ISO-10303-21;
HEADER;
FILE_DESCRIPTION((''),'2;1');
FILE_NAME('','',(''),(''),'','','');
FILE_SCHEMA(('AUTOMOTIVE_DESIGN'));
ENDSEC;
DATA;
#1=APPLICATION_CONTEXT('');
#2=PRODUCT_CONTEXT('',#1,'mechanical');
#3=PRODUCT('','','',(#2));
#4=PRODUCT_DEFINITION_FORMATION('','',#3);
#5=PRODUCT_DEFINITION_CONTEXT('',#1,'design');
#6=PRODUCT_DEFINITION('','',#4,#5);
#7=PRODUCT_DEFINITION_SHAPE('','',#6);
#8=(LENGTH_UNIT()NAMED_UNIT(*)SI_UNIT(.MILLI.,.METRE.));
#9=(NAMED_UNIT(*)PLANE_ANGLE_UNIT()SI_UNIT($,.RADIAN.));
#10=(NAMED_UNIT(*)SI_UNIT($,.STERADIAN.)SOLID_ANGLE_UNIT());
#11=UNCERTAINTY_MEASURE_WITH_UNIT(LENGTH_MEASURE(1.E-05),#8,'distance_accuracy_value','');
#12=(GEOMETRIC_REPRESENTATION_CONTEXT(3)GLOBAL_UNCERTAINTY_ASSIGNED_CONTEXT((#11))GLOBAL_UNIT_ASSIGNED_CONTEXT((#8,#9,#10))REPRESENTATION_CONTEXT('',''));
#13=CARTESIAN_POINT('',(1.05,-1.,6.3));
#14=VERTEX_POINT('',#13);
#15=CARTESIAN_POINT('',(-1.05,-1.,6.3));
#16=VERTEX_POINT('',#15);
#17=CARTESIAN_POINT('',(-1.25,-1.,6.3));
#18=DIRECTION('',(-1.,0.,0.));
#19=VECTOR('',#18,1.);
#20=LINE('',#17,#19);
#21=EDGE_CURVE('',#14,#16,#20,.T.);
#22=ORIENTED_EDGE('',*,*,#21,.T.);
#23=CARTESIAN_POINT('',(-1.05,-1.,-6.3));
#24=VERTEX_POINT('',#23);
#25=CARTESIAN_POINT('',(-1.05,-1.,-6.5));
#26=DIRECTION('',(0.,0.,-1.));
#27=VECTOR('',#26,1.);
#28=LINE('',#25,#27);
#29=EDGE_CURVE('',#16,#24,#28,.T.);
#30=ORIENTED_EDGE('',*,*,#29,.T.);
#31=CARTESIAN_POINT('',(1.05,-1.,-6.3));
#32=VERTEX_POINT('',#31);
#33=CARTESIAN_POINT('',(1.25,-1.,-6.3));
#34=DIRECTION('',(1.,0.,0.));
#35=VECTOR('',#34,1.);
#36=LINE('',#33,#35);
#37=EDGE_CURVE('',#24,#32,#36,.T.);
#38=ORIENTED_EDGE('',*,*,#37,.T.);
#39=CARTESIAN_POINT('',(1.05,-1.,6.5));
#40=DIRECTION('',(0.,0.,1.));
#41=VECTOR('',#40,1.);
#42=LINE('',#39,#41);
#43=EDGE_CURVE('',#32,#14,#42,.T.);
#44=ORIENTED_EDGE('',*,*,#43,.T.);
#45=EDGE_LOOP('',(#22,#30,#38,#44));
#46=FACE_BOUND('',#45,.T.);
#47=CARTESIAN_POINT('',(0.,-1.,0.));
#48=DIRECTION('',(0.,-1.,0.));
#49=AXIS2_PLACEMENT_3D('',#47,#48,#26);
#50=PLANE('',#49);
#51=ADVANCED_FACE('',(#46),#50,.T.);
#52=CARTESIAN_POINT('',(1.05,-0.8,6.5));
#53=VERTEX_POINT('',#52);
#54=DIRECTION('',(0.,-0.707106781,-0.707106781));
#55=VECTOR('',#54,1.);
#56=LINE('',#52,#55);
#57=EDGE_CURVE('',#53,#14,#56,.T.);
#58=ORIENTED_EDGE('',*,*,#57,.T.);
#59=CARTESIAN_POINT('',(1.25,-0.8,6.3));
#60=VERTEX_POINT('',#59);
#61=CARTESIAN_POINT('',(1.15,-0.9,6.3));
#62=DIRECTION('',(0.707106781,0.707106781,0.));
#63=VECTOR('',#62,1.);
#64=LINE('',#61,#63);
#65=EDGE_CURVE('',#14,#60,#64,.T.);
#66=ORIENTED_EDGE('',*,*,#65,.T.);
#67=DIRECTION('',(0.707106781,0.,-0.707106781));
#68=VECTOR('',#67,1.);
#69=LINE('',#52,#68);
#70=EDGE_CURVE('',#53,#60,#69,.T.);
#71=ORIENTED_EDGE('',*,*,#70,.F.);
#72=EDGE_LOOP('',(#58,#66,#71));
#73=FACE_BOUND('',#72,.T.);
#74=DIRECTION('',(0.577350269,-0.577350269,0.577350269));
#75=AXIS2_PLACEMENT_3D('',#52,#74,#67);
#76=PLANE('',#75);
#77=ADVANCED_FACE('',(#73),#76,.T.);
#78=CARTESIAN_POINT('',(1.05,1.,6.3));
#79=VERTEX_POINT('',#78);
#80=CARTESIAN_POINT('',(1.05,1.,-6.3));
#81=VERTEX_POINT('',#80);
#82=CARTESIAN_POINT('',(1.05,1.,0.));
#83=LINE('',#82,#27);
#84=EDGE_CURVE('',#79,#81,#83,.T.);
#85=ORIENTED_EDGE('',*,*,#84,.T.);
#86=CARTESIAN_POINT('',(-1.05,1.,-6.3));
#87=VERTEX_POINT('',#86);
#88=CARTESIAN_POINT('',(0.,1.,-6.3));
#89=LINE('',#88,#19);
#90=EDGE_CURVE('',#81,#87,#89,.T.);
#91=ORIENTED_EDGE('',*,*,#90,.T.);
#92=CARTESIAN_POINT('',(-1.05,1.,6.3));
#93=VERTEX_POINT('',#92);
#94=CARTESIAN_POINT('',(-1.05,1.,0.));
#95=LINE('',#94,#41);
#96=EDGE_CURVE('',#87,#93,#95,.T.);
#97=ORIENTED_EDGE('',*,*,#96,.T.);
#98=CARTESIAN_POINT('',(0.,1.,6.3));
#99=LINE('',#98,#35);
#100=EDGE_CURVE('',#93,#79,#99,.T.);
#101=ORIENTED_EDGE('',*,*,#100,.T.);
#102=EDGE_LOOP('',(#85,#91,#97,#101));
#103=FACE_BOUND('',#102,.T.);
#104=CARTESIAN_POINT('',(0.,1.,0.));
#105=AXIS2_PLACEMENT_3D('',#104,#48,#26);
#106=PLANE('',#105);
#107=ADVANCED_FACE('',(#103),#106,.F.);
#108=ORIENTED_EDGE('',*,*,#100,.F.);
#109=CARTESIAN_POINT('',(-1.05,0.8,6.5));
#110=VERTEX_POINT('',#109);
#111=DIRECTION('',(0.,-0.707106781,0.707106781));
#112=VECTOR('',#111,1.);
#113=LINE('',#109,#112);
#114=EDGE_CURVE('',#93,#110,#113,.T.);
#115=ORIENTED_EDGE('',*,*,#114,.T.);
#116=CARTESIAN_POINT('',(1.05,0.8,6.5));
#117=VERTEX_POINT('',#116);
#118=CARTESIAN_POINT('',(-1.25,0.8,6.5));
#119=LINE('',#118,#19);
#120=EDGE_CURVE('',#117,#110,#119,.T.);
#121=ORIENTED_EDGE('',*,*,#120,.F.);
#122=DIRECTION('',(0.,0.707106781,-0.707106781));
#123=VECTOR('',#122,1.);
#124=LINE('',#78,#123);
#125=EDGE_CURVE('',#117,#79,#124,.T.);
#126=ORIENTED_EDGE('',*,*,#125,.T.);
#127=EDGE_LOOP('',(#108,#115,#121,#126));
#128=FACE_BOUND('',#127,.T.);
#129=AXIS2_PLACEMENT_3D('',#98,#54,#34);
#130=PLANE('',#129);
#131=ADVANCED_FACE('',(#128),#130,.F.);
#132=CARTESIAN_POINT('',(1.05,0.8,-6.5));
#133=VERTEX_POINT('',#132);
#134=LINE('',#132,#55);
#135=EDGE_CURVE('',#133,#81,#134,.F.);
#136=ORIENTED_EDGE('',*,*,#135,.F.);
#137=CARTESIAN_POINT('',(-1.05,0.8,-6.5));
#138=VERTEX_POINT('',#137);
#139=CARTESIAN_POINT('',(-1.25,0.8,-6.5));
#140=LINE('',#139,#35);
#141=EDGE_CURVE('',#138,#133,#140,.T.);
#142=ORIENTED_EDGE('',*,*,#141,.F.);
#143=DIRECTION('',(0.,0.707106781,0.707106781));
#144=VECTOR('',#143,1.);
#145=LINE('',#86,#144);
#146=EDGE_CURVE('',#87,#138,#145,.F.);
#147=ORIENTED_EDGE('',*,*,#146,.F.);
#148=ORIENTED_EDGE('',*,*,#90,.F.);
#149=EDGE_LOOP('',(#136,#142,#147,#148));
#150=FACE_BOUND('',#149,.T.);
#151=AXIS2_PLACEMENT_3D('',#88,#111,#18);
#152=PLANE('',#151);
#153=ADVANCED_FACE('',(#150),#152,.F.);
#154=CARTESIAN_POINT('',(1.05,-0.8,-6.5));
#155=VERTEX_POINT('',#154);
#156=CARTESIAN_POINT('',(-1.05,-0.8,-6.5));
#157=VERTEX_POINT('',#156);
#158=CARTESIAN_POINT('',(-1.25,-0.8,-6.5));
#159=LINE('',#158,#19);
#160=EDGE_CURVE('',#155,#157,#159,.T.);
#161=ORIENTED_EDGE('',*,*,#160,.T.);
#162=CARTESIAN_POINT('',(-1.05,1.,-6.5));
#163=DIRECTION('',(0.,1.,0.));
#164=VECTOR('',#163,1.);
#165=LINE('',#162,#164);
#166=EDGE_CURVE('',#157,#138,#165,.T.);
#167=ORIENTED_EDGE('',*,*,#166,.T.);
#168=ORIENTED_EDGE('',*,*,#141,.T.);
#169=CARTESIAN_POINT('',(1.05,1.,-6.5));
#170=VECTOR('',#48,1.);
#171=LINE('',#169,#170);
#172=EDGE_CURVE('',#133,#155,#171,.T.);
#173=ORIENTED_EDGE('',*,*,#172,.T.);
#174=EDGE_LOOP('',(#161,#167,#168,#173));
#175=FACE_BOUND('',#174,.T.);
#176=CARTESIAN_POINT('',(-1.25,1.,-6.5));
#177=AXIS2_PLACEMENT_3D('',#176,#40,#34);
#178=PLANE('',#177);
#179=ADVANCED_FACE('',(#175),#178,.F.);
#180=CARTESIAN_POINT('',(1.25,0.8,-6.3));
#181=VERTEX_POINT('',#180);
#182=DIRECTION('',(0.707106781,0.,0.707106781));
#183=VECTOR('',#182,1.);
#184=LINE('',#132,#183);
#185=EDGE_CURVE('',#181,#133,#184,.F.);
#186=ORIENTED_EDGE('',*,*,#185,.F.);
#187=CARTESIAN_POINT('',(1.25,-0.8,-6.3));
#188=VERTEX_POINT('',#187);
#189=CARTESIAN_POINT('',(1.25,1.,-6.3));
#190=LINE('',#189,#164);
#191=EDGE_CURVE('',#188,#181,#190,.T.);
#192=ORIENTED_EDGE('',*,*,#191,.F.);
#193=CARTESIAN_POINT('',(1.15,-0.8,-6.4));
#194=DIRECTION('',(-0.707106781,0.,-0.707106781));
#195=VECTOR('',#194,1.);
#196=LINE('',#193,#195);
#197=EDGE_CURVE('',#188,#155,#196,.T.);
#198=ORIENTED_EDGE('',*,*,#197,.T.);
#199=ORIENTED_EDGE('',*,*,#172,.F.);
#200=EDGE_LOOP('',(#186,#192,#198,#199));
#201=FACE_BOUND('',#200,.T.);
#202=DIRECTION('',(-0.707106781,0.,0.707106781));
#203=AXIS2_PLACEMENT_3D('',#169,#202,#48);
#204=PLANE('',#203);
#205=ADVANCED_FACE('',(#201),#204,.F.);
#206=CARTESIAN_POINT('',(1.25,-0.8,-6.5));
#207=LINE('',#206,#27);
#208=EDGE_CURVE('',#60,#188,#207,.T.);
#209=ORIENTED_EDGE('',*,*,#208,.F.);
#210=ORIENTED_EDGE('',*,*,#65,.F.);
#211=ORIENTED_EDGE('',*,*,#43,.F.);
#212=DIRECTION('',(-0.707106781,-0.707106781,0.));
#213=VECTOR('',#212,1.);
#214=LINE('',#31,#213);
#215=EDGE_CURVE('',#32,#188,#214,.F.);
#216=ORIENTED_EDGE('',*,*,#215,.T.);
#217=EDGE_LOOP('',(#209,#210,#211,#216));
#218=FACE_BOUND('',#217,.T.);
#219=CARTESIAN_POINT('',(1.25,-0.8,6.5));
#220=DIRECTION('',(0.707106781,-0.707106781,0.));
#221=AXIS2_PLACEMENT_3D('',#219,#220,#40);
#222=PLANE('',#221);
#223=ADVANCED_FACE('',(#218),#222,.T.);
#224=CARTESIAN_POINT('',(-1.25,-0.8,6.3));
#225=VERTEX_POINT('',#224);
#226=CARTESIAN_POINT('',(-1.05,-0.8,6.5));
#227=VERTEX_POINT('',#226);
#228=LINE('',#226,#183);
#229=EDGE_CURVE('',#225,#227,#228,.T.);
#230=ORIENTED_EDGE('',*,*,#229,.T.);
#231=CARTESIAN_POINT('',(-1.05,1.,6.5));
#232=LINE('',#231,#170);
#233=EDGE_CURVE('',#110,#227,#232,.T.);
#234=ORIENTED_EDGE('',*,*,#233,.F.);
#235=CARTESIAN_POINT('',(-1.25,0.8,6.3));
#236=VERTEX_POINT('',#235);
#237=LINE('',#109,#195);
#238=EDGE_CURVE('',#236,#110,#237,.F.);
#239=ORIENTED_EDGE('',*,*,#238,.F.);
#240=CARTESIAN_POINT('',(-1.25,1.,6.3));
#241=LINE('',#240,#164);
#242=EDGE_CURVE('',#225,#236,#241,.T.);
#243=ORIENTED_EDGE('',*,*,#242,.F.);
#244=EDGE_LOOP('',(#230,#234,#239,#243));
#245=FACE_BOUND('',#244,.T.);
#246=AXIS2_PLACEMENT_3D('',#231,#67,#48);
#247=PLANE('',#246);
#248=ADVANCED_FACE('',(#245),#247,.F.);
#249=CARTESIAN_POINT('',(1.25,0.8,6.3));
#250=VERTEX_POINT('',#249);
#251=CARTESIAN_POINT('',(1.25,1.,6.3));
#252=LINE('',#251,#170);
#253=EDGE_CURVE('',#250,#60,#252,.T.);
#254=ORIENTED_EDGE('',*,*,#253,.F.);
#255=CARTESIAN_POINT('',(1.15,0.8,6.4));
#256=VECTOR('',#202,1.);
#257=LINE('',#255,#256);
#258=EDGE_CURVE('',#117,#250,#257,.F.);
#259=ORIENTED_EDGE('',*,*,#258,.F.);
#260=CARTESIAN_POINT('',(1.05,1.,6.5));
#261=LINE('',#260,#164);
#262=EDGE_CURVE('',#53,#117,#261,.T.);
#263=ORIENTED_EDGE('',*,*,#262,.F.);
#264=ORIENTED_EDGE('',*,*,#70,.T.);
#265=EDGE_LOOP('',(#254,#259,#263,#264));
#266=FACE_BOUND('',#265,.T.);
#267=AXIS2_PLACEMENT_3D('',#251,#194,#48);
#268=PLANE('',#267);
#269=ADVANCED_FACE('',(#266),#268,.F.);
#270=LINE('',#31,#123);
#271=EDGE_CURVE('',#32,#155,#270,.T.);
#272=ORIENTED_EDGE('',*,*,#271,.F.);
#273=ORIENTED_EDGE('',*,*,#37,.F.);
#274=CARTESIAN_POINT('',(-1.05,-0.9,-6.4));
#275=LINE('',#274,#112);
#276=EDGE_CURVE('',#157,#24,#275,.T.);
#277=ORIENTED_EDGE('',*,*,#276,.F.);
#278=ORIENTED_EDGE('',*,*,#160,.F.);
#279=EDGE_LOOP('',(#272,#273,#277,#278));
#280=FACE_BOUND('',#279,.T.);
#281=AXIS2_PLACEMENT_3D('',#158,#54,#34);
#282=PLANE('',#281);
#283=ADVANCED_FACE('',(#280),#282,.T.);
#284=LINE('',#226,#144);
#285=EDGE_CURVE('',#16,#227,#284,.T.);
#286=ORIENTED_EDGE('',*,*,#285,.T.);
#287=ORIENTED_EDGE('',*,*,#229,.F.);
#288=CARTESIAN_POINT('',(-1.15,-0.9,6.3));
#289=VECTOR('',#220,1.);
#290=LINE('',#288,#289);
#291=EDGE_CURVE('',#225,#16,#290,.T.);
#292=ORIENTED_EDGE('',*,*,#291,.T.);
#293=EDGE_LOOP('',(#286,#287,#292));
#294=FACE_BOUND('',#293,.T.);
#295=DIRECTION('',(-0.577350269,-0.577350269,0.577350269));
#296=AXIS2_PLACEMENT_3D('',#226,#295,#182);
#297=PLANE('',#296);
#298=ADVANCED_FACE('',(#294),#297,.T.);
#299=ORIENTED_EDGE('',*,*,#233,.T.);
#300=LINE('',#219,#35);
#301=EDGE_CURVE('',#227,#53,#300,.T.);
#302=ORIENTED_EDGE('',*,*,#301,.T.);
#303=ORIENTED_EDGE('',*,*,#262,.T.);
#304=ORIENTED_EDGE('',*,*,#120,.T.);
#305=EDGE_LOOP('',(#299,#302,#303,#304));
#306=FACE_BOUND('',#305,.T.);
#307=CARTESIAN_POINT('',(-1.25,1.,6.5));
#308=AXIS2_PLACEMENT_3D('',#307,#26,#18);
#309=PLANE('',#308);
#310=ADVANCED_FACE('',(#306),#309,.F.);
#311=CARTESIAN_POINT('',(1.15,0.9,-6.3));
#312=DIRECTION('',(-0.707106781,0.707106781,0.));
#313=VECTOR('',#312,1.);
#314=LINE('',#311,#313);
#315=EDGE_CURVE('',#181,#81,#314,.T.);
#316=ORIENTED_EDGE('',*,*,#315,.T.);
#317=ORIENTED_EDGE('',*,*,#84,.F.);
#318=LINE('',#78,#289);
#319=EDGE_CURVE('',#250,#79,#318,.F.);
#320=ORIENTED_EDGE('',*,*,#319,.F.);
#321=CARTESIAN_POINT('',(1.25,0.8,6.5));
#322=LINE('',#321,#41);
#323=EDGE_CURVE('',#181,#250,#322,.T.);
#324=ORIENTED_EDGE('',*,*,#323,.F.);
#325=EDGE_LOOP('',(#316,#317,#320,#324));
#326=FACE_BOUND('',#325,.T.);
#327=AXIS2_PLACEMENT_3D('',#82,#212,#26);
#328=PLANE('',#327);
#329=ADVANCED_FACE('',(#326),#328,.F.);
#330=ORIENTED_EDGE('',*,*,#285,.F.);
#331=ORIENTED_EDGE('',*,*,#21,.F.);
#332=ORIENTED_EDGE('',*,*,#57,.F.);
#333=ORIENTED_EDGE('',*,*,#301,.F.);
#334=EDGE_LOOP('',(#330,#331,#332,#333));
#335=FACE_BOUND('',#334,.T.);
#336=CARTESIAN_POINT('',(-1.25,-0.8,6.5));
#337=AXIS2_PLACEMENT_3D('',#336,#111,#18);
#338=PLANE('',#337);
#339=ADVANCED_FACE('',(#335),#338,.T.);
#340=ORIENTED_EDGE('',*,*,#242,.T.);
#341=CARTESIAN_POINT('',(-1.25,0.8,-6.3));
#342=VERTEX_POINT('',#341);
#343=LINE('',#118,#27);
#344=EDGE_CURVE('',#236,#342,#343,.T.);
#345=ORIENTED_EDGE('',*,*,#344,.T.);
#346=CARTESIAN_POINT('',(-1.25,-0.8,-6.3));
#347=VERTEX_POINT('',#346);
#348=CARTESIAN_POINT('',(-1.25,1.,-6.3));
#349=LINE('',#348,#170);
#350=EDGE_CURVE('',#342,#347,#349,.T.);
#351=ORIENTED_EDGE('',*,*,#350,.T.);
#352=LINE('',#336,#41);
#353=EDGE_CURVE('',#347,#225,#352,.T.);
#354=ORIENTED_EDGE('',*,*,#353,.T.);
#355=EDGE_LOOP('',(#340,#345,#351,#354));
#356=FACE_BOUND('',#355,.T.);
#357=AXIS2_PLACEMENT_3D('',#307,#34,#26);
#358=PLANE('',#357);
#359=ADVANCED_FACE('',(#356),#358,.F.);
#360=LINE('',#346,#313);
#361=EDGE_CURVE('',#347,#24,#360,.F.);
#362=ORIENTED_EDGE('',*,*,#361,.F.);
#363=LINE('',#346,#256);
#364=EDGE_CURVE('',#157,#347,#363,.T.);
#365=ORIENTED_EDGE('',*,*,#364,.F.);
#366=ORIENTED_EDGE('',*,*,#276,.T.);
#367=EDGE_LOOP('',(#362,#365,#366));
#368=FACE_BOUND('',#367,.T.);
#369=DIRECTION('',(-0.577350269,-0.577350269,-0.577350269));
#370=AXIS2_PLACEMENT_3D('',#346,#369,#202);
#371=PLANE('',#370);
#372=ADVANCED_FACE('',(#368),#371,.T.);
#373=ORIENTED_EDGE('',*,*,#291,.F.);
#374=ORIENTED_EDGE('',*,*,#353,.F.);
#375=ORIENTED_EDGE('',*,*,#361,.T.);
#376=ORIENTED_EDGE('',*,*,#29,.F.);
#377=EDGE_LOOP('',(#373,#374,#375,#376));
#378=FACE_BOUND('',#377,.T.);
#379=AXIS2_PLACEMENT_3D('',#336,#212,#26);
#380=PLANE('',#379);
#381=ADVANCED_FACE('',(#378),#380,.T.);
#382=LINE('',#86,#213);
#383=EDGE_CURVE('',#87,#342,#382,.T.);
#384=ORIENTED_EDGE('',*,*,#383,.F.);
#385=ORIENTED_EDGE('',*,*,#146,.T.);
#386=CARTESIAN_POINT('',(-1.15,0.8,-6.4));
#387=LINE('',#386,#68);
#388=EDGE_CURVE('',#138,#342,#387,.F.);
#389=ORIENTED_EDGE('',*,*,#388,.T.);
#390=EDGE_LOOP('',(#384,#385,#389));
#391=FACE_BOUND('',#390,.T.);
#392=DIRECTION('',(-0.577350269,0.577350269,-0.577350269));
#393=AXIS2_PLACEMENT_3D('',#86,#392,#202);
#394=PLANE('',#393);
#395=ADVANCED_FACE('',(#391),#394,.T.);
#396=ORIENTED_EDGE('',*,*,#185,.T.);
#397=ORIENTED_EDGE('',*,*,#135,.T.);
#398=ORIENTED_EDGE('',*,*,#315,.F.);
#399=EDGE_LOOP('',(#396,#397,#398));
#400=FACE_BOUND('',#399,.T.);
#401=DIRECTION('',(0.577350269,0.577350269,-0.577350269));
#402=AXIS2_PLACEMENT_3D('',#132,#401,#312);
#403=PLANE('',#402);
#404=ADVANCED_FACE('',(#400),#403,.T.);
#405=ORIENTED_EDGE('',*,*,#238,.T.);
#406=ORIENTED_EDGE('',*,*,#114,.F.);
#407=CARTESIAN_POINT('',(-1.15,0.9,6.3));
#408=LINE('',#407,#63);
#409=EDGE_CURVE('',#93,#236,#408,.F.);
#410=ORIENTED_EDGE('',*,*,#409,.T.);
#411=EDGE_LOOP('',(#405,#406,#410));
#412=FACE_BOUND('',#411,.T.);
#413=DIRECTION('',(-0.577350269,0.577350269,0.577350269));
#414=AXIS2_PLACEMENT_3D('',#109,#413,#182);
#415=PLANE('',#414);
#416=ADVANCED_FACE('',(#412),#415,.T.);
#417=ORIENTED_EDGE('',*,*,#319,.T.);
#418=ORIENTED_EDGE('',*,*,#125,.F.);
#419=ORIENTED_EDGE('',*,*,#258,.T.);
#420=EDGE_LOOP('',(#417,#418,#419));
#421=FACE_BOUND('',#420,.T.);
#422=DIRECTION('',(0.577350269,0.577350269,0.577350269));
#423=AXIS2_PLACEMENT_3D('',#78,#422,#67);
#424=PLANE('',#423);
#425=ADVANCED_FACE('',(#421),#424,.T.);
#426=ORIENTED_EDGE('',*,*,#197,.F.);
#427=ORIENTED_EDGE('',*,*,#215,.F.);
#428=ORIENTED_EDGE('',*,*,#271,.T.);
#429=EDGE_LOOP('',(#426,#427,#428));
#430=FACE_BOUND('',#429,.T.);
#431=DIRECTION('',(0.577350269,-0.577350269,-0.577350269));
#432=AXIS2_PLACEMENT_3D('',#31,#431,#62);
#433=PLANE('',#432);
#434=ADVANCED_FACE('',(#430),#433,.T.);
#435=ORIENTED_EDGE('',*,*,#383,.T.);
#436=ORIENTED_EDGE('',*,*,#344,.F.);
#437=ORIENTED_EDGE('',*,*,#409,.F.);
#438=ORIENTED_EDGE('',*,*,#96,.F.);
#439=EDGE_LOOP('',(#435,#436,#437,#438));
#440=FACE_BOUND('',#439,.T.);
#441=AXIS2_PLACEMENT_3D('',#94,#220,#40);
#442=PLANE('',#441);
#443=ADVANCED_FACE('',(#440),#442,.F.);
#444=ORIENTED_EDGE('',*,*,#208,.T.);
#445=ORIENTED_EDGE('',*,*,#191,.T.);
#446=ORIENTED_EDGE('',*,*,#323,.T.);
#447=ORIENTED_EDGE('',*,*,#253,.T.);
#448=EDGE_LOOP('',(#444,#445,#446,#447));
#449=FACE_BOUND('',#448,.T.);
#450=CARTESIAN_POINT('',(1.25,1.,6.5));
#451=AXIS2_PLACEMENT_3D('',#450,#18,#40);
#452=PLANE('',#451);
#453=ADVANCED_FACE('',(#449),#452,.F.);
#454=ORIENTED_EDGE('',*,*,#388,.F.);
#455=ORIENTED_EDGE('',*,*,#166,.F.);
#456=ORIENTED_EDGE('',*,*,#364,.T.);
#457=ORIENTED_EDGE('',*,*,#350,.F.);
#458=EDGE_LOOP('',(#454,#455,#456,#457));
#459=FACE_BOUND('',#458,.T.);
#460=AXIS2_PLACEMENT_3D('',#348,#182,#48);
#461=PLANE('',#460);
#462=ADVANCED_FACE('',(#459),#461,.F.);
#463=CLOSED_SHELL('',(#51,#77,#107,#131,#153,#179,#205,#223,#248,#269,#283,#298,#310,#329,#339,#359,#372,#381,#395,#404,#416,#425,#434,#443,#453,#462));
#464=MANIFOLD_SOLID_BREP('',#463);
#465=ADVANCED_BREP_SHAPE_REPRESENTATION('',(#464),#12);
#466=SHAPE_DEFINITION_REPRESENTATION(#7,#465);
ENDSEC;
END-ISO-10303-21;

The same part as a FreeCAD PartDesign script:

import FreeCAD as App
import Part
import Sketcher
from FreeCAD import Vector

doc = App.newDocument("Part")
body = doc.addObject("PartDesign::Body", "Body")

# Sketch on XZ plane
sketch1 = doc.addObject("Sketcher::SketchObject", "Sketch")
body.addObject(sketch1)
sketch1.AttachmentSupport = (doc.XZ_Plane, [""])
sketch1.MapMode = "FlatFace"
sketch1.addGeometry([
    Part.LineSegment(Vector(-1.2, -6.5, 0), Vector(-1.2, 6.5, 0)),
    Part.LineSegment(Vector(-1.2, 6.5, 0), Vector(1.2, 6.5, 0)),
    Part.LineSegment(Vector(1.2, 6.5, 0), Vector(1.2, -6.5, 0)),
    Part.LineSegment(Vector(1.2, -6.5, 0), Vector(-1.2, -6.5, 0)),
], False)
sketch1.addConstraint([
    Sketcher.Constraint("Coincident", 0, 2, 1, 1),
    Sketcher.Constraint("Coincident", 1, 2, 2, 1),
    Sketcher.Constraint("Coincident", 2, 2, 3, 1),
    Sketcher.Constraint("Coincident", 3, 2, 0, 1),
    Sketcher.Constraint("Vertical", 0),
    Sketcher.Constraint("Horizontal", 1),
    Sketcher.Constraint("Vertical", 2),
    Sketcher.Constraint("Horizontal", 3),
    Sketcher.Constraint("Symmetric", 0, 2, 2, 2, -1, 1),
    Sketcher.Constraint("DistanceY", 0, 1, 0, 2, 13.0),
    Sketcher.Constraint("DistanceX", 1, 1, 1, 2, 2.5),
])
pad1 = doc.addObject("PartDesign::Pad", "Pad")
body.addObject(pad1)
pad1.Profile = sketch1
pad1.Length = 2
pad1.Midplane = True
doc.recompute()

chamfer = doc.addObject("PartDesign::Chamfer", "Chamfer")
body.addObject(chamfer)
chamfer.Base = (pad1, ["Edge1"])
chamfer.UseAllEdges = True
chamfer.Size = 0.2

doc.recompute()
